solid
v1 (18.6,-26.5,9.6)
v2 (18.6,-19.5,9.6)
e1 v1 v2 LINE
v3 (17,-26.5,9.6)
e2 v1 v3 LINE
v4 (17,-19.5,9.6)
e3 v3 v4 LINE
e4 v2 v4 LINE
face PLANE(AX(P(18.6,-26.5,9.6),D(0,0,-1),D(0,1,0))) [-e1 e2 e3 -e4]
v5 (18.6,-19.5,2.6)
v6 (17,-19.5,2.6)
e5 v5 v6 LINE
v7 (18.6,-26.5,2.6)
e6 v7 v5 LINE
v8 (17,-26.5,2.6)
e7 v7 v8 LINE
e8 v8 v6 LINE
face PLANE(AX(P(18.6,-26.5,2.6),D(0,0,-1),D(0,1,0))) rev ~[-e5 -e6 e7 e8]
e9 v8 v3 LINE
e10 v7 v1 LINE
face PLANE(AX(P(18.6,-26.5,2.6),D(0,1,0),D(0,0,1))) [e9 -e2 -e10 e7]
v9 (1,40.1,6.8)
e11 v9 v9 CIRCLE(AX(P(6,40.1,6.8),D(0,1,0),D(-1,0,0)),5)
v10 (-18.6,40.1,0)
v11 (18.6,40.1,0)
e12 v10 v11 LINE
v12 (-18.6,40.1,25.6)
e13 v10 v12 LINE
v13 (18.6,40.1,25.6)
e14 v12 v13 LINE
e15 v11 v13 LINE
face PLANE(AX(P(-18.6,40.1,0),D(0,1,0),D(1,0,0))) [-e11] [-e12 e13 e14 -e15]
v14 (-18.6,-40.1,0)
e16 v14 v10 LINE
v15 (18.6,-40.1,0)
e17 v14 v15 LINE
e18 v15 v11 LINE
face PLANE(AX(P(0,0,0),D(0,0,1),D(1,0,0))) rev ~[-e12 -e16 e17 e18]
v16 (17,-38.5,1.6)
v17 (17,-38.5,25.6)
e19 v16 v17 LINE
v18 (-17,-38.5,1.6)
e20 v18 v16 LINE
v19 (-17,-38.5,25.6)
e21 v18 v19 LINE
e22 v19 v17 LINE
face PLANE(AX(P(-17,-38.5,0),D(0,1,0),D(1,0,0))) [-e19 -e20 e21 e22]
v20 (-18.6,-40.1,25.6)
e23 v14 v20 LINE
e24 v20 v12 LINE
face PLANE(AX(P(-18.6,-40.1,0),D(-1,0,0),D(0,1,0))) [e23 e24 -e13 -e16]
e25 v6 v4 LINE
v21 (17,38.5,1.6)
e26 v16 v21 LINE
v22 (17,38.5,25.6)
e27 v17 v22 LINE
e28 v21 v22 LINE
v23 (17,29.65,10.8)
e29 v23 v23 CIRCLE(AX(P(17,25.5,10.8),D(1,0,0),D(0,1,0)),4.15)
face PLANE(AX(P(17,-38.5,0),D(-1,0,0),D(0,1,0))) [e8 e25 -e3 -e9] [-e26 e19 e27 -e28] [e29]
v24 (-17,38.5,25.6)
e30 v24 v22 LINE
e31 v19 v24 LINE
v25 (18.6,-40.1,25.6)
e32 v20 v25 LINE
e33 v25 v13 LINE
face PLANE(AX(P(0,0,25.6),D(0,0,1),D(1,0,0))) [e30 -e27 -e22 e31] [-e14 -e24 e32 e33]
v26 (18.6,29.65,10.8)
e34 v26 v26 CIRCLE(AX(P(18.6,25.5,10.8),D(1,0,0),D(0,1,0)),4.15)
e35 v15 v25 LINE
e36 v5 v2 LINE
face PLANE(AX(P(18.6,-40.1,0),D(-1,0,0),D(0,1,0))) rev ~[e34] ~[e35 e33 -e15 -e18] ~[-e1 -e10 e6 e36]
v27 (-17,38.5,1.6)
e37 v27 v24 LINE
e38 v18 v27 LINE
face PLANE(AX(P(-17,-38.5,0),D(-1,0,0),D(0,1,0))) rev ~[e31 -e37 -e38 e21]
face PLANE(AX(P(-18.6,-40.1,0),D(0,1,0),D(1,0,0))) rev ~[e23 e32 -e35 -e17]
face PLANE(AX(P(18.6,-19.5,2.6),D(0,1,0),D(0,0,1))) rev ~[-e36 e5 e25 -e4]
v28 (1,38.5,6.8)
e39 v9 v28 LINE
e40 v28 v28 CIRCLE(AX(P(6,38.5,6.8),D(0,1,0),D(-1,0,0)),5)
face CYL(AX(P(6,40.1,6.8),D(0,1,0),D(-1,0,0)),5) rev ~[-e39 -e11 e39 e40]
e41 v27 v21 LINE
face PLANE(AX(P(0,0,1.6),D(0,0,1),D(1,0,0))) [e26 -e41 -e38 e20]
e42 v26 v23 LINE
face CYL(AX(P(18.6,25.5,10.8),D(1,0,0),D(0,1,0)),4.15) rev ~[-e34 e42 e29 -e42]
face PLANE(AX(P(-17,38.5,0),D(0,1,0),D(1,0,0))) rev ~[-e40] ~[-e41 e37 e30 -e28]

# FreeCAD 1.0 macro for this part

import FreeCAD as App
import Part
import Sketcher

doc = App.newDocument("Part")
body = doc.addObject("PartDesign::Body", "Body")

# Sketch on XY plane
sketch1 = doc.addObject("Sketcher::SketchObject", "Sketch")
body.addObject(sketch1)
sketch1.AttachmentSupport = (doc.XY_Plane, [""])
sketch1.MapMode = "FlatFace"
sketch1.addGeometry([
    Part.LineSegment(App.Vector(-17, 38, 0), App.Vector(-17, -38, 0)),
    Part.LineSegment(App.Vector(-17, -38, 0), App.Vector(17, -38, 0)),
    Part.LineSegment(App.Vector(17, -38, 0), App.Vector(17, 38, 0)),
    Part.LineSegment(App.Vector(17, 38, 0), App.Vector(-17, 38, 0)),
], False)
sketch1.addConstraint([
    Sketcher.Constraint("Coincident", 0, 2, 1, 1),
    Sketcher.Constraint("Coincident", 1, 2, 2, 1),
    Sketcher.Constraint("Coincident", 2, 2, 3, 1),
    Sketcher.Constraint("Coincident", 3, 2, 0, 1),
    Sketcher.Constraint("Vertical", 0),
    Sketcher.Constraint("Horizontal", 1),
    Sketcher.Constraint("Vertical", 2),
    Sketcher.Constraint("Horizontal", 3),
    Sketcher.Constraint("Symmetric", 0, 2, 2, 2, -1, 1),
    Sketcher.Constraint("DistanceX", 1, 1, 1, 2, 34.0),
    Sketcher.Constraint("DistanceY", 0, 2, 0, 1, 77.0),
])
pad1 = doc.addObject("PartDesign::Pad", "Pad")
body.addObject(pad1)
pad1.Profile = sketch1
pad1.Length = 1.6

# Sketch on XY plane
sketch2 = doc.addObject("Sketcher::SketchObject", "Sketch001")
body.addObject(sketch2)
sketch2.AttachmentSupport = (doc.XY_Plane, [""])
sketch2.MapMode = "FlatFace"
sketch2.addGeometry([
    Part.LineSegment(App.Vector(-19, 40, 0), App.Vector(-19, -40, 0)),  # 0
    Part.LineSegment(App.Vector(-19, -40, 0), App.Vector(19, -40, 0)),  # 1
    Part.LineSegment(App.Vector(19, -40, 0), App.Vector(19, 40, 0)),  # 2
    Part.LineSegment(App.Vector(19, 40, 0), App.Vector(-19, 40, 0)),  # 3
    Part.LineSegment(App.Vector(17, -38, 0), App.Vector(-17, -38, 0)),  # 4
    Part.LineSegment(App.Vector(-17, -38, 0), App.Vector(-17, 38, 0)),  # 5
    Part.LineSegment(App.Vector(-17, 38, 0), App.Vector(17, 38, 0)),  # 6
    Part.LineSegment(App.Vector(17, 38, 0), App.Vector(17, -38, 0)),  # 7
], False)
sketch2.addConstraint([
    Sketcher.Constraint("Coincident", 0, 2, 1, 1),
    Sketcher.Constraint("Coincident", 1, 2, 2, 1),
    Sketcher.Constraint("Coincident", 2, 2, 3, 1),
    Sketcher.Constraint("Coincident", 3, 2, 0, 1),
    Sketcher.Constraint("Coincident", 4, 2, 5, 1),
    Sketcher.Constraint("Coincident", 5, 2, 6, 1),
    Sketcher.Constraint("Coincident", 6, 2, 7, 1),
    Sketcher.Constraint("Coincident", 7, 2, 4, 1),
    Sketcher.Constraint("Vertical", 0),
    Sketcher.Constraint("Horizontal", 1),
    Sketcher.Constraint("Vertical", 2),
    Sketcher.Constraint("Horizontal", 3),
    Sketcher.Constraint("Horizontal", 4),
    Sketcher.Constraint("Vertical", 5),
    Sketcher.Constraint("Horizontal", 6),
    Sketcher.Constraint("Vertical", 7),
    Sketcher.Constraint("Symmetric", 0, 2, 2, 2, -1, 1),
    Sketcher.Constraint("Symmetric", 4, 2, 6, 2, -1, 1),
    Sketcher.Constraint("DistanceX", 4, 2, 4, 1, 34.0),
    Sketcher.Constraint("DistanceY", 5, 1, 5, 2, 77.0),
    Sketcher.Constraint("DistanceX", 1, 1, 1, 2, 37.2),
    Sketcher.Constraint("DistanceY", 0, 2, 0, 1, 80.2),
])
pad2 = doc.addObject("PartDesign::Pad", "Pad001")
body.addObject(pad2)
pad2.Profile = sketch2
pad2.Length = 25.6

# Sketch on XZ plane
sketch3 = doc.addObject("Sketcher::SketchObject", "Sketch002")
body.addObject(sketch3)
sketch3.AttachmentSupport = (doc.XZ_Plane, [""])
sketch3.MapMode = "FlatFace"
sketch3.AttachmentOffset = App.Placement(App.Vector(0, 0, -40.1), App.Rotation())
sketch3.addGeometry(Part.Circle(App.Vector(6, 7, 0), App.Vector(0, 0, 1), 5), False)
sketch3.addConstraint([
    Sketcher.Constraint("Diameter", 0, 10.0),
    Sketcher.Constraint("DistanceX", -1, 1, 0, 3, 6.0),
    Sketcher.Constraint("DistanceY", -1, 1, 0, 3, 6.8),
])
pocket1 = doc.addObject("PartDesign::Pocket", "Pocket")
body.addObject(pocket1)
pocket1.Profile = sketch3
pocket1.Length = 1.6
pocket1.Reversed = True

# Sketch on YZ plane
sketch4 = doc.addObject("Sketcher::SketchObject", "Sketch003")
body.addObject(sketch4)
sketch4.AttachmentSupport = (doc.YZ_Plane, [""])
sketch4.MapMode = "FlatFace"
sketch4.AttachmentOffset = App.Placement(App.Vector(0, 0, 18.6), App.Rotation())
sketch4.addGeometry([
    Part.Circle(App.Vector(25.5, 10.8, 0), App.Vector(0, 0, 1), 4.2),  # 0
    Part.LineSegment(App.Vector(-26.5, 9.6, 0), App.Vector(-26.5, 2.6, 0)),  # 1
    Part.LineSegment(App.Vector(-26.5, 2.6, 0), App.Vector(-19.5, 2.6, 0)),  # 2
    Part.LineSegment(App.Vector(-19.5, 2.6, 0), App.Vector(-19.5, 9.6, 0)),  # 3
    Part.LineSegment(App.Vector(-19.5, 9.6, 0), App.Vector(-26.5, 9.6, 0)),  # 4
], False)
sketch4.addConstraint([
    Sketcher.Constraint("Coincident", 1, 2, 2, 1),
    Sketcher.Constraint("Coincident", 2, 2, 3, 1),
    Sketcher.Constraint("Coincident", 3, 2, 4, 1),
    Sketcher.Constraint("Coincident", 4, 2, 1, 1),
    Sketcher.Constraint("Vertical", 1),
    Sketcher.Constraint("Horizontal", 2),
    Sketcher.Constraint("Vertical", 3),
    Sketcher.Constraint("Horizontal", 4),
    Sketcher.Constraint("Equal", 4, 1),
    Sketcher.Constraint("Diameter", 0, 8.3),
    Sketcher.Constraint("DistanceX", 2, 1, 2, 2, 7.0),
    Sketcher.Constraint("DistanceX", 1, 2, 0, 3, 52.0),
    Sketcher.Constraint("DistanceX", -1, 1, 0, 3, 25.5),
    Sketcher.Constraint("DistanceY", -1, 1, 0, 3, 10.8),
    Sketcher.Constraint("DistanceY", -1, 1, 1, 2, 2.6),
])
pocket2 = doc.addObject("PartDesign::Pocket", "Pocket001")
body.addObject(pocket2)
pocket2.Profile = sketch4
pocket2.Length = 1.6

doc.recompute()
